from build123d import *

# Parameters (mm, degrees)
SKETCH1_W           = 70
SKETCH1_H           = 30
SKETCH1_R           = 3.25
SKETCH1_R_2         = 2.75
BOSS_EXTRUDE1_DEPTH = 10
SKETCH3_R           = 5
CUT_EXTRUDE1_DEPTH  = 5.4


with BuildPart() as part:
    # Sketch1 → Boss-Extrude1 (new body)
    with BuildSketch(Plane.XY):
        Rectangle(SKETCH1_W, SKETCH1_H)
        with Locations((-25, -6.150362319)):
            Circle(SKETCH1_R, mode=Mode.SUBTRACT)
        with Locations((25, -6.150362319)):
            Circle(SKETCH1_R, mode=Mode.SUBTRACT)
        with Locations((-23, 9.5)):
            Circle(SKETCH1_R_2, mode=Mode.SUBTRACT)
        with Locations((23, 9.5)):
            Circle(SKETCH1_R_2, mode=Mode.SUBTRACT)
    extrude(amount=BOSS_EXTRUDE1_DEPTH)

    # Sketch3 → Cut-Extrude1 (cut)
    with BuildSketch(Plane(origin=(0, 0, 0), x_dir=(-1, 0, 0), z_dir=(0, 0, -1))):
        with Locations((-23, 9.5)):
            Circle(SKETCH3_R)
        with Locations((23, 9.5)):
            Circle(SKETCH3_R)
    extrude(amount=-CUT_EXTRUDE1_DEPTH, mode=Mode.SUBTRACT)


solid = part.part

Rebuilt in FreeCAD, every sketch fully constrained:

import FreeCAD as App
import Part
import Sketcher

V = App.Vector


def add_polygon(sketch, points):
    """Adds a closed chain of lines whose ends are joined by coincident constraints."""
    first, n = sketch.GeometryCount, len(points)
    for a, b in zip(points, points[1:] + points[:1]):
        sketch.addGeometry(Part.LineSegment(App.Vector(*a, 0), App.Vector(*b, 0)), False)
    for i in range(n):
        sketch.addConstraint(Sketcher.Constraint("Coincident", first + i, 2, first + (i + 1) % n, 1))

doc = App.newDocument("Part")
body = doc.addObject("PartDesign::Body", "Body")

sketch1 = body.newObject("Sketcher::SketchObject", "Sketch")
sketch1.AttachmentSupport = (doc.getObject("XY_Plane"), [""])
sketch1.MapMode = "FlatFace"
add_polygon(sketch1, [(-35, 15), (-35, -15), (35, -15), (35, 15)])
sketch1.addGeometry(Part.Circle(V(-25, -6.2, 0), V(0, 0, 1), 3.2), False)
sketch1.addGeometry(Part.Circle(V(25, -6.2, 0), V(0, 0, 1), 3.2), False)
sketch1.addGeometry(Part.Circle(V(-23, 9.5, 0), V(0, 0, 1), 2.8), False)
sketch1.addGeometry(Part.Circle(V(23, 9.5, 0), V(0, 0, 1), 2.8), False)
sketch1.addConstraint([
    Sketcher.Constraint("Vertical", 0),
    Sketcher.Constraint("Horizontal", 1),
    Sketcher.Constraint("Vertical", 2),
    Sketcher.Constraint("Horizontal", 3),
    Sketcher.Constraint("Equal", 4, 5),
    Sketcher.Constraint("Equal", 6, 7),
    Sketcher.Constraint("Symmetric", 0, 2, 2, 2, -1, 1),
    Sketcher.Constraint("Symmetric", 4, 3, 5, 3, -2),
    Sketcher.Constraint("Symmetric", 6, 3, 7, 3, -2),
    Sketcher.Constraint("Diameter", 4, 6.5),
    Sketcher.Constraint("Diameter", 6, 5.5),
    Sketcher.Constraint("DistanceX", 1, 1, 1, 2, 70.0),
    Sketcher.Constraint("DistanceY", 0, 2, 0, 1, 30.0),
    Sketcher.Constraint("DistanceX", 4, 3, -1, 1, 25.0),
    Sketcher.Constraint("DistanceX", 6, 3, -1, 1, 23.0),
    Sketcher.Constraint("DistanceY", -1, 1, 6, 3, 9.5),
    Sketcher.Constraint("DistanceY", 4, 3, -1, 1, 6.150362),
])
pad1 = body.newObject("PartDesign::Pad", "Pad")
pad1.Profile = sketch1
pad1.Length = 10

sketch2 = body.newObject("Sketcher::SketchObject", "Sketch001")
sketch2.AttachmentSupport = (doc.getObject("XY_Plane"), [""])
sketch2.MapMode = "FlatFace"
sketch2.addGeometry([
    Part.Circle(V(23, 10, 0), V(0, 0, 1), 5),
    Part.Circle(V(-23, 10, 0), V(0, 0, 1), 5),
], False)
sketch2.addConstraint([
    Sketcher.Constraint("Equal", 0, 1),
    Sketcher.Constraint("Symmetric", 0, 3, 1, 3, -2),
    Sketcher.Constraint("Diameter", 0, 10.0),
    Sketcher.Constraint("DistanceX", -1, 1, 0, 3, 23.0),
    Sketcher.Constraint("DistanceY", -1, 1, 0, 3, 9.5),
])
pocket1 = body.newObject("PartDesign::Pocket", "Pocket")
pocket1.Profile = sketch2
pocket1.Length = 5.4
pocket1.Reversed = True

doc.recompute()
